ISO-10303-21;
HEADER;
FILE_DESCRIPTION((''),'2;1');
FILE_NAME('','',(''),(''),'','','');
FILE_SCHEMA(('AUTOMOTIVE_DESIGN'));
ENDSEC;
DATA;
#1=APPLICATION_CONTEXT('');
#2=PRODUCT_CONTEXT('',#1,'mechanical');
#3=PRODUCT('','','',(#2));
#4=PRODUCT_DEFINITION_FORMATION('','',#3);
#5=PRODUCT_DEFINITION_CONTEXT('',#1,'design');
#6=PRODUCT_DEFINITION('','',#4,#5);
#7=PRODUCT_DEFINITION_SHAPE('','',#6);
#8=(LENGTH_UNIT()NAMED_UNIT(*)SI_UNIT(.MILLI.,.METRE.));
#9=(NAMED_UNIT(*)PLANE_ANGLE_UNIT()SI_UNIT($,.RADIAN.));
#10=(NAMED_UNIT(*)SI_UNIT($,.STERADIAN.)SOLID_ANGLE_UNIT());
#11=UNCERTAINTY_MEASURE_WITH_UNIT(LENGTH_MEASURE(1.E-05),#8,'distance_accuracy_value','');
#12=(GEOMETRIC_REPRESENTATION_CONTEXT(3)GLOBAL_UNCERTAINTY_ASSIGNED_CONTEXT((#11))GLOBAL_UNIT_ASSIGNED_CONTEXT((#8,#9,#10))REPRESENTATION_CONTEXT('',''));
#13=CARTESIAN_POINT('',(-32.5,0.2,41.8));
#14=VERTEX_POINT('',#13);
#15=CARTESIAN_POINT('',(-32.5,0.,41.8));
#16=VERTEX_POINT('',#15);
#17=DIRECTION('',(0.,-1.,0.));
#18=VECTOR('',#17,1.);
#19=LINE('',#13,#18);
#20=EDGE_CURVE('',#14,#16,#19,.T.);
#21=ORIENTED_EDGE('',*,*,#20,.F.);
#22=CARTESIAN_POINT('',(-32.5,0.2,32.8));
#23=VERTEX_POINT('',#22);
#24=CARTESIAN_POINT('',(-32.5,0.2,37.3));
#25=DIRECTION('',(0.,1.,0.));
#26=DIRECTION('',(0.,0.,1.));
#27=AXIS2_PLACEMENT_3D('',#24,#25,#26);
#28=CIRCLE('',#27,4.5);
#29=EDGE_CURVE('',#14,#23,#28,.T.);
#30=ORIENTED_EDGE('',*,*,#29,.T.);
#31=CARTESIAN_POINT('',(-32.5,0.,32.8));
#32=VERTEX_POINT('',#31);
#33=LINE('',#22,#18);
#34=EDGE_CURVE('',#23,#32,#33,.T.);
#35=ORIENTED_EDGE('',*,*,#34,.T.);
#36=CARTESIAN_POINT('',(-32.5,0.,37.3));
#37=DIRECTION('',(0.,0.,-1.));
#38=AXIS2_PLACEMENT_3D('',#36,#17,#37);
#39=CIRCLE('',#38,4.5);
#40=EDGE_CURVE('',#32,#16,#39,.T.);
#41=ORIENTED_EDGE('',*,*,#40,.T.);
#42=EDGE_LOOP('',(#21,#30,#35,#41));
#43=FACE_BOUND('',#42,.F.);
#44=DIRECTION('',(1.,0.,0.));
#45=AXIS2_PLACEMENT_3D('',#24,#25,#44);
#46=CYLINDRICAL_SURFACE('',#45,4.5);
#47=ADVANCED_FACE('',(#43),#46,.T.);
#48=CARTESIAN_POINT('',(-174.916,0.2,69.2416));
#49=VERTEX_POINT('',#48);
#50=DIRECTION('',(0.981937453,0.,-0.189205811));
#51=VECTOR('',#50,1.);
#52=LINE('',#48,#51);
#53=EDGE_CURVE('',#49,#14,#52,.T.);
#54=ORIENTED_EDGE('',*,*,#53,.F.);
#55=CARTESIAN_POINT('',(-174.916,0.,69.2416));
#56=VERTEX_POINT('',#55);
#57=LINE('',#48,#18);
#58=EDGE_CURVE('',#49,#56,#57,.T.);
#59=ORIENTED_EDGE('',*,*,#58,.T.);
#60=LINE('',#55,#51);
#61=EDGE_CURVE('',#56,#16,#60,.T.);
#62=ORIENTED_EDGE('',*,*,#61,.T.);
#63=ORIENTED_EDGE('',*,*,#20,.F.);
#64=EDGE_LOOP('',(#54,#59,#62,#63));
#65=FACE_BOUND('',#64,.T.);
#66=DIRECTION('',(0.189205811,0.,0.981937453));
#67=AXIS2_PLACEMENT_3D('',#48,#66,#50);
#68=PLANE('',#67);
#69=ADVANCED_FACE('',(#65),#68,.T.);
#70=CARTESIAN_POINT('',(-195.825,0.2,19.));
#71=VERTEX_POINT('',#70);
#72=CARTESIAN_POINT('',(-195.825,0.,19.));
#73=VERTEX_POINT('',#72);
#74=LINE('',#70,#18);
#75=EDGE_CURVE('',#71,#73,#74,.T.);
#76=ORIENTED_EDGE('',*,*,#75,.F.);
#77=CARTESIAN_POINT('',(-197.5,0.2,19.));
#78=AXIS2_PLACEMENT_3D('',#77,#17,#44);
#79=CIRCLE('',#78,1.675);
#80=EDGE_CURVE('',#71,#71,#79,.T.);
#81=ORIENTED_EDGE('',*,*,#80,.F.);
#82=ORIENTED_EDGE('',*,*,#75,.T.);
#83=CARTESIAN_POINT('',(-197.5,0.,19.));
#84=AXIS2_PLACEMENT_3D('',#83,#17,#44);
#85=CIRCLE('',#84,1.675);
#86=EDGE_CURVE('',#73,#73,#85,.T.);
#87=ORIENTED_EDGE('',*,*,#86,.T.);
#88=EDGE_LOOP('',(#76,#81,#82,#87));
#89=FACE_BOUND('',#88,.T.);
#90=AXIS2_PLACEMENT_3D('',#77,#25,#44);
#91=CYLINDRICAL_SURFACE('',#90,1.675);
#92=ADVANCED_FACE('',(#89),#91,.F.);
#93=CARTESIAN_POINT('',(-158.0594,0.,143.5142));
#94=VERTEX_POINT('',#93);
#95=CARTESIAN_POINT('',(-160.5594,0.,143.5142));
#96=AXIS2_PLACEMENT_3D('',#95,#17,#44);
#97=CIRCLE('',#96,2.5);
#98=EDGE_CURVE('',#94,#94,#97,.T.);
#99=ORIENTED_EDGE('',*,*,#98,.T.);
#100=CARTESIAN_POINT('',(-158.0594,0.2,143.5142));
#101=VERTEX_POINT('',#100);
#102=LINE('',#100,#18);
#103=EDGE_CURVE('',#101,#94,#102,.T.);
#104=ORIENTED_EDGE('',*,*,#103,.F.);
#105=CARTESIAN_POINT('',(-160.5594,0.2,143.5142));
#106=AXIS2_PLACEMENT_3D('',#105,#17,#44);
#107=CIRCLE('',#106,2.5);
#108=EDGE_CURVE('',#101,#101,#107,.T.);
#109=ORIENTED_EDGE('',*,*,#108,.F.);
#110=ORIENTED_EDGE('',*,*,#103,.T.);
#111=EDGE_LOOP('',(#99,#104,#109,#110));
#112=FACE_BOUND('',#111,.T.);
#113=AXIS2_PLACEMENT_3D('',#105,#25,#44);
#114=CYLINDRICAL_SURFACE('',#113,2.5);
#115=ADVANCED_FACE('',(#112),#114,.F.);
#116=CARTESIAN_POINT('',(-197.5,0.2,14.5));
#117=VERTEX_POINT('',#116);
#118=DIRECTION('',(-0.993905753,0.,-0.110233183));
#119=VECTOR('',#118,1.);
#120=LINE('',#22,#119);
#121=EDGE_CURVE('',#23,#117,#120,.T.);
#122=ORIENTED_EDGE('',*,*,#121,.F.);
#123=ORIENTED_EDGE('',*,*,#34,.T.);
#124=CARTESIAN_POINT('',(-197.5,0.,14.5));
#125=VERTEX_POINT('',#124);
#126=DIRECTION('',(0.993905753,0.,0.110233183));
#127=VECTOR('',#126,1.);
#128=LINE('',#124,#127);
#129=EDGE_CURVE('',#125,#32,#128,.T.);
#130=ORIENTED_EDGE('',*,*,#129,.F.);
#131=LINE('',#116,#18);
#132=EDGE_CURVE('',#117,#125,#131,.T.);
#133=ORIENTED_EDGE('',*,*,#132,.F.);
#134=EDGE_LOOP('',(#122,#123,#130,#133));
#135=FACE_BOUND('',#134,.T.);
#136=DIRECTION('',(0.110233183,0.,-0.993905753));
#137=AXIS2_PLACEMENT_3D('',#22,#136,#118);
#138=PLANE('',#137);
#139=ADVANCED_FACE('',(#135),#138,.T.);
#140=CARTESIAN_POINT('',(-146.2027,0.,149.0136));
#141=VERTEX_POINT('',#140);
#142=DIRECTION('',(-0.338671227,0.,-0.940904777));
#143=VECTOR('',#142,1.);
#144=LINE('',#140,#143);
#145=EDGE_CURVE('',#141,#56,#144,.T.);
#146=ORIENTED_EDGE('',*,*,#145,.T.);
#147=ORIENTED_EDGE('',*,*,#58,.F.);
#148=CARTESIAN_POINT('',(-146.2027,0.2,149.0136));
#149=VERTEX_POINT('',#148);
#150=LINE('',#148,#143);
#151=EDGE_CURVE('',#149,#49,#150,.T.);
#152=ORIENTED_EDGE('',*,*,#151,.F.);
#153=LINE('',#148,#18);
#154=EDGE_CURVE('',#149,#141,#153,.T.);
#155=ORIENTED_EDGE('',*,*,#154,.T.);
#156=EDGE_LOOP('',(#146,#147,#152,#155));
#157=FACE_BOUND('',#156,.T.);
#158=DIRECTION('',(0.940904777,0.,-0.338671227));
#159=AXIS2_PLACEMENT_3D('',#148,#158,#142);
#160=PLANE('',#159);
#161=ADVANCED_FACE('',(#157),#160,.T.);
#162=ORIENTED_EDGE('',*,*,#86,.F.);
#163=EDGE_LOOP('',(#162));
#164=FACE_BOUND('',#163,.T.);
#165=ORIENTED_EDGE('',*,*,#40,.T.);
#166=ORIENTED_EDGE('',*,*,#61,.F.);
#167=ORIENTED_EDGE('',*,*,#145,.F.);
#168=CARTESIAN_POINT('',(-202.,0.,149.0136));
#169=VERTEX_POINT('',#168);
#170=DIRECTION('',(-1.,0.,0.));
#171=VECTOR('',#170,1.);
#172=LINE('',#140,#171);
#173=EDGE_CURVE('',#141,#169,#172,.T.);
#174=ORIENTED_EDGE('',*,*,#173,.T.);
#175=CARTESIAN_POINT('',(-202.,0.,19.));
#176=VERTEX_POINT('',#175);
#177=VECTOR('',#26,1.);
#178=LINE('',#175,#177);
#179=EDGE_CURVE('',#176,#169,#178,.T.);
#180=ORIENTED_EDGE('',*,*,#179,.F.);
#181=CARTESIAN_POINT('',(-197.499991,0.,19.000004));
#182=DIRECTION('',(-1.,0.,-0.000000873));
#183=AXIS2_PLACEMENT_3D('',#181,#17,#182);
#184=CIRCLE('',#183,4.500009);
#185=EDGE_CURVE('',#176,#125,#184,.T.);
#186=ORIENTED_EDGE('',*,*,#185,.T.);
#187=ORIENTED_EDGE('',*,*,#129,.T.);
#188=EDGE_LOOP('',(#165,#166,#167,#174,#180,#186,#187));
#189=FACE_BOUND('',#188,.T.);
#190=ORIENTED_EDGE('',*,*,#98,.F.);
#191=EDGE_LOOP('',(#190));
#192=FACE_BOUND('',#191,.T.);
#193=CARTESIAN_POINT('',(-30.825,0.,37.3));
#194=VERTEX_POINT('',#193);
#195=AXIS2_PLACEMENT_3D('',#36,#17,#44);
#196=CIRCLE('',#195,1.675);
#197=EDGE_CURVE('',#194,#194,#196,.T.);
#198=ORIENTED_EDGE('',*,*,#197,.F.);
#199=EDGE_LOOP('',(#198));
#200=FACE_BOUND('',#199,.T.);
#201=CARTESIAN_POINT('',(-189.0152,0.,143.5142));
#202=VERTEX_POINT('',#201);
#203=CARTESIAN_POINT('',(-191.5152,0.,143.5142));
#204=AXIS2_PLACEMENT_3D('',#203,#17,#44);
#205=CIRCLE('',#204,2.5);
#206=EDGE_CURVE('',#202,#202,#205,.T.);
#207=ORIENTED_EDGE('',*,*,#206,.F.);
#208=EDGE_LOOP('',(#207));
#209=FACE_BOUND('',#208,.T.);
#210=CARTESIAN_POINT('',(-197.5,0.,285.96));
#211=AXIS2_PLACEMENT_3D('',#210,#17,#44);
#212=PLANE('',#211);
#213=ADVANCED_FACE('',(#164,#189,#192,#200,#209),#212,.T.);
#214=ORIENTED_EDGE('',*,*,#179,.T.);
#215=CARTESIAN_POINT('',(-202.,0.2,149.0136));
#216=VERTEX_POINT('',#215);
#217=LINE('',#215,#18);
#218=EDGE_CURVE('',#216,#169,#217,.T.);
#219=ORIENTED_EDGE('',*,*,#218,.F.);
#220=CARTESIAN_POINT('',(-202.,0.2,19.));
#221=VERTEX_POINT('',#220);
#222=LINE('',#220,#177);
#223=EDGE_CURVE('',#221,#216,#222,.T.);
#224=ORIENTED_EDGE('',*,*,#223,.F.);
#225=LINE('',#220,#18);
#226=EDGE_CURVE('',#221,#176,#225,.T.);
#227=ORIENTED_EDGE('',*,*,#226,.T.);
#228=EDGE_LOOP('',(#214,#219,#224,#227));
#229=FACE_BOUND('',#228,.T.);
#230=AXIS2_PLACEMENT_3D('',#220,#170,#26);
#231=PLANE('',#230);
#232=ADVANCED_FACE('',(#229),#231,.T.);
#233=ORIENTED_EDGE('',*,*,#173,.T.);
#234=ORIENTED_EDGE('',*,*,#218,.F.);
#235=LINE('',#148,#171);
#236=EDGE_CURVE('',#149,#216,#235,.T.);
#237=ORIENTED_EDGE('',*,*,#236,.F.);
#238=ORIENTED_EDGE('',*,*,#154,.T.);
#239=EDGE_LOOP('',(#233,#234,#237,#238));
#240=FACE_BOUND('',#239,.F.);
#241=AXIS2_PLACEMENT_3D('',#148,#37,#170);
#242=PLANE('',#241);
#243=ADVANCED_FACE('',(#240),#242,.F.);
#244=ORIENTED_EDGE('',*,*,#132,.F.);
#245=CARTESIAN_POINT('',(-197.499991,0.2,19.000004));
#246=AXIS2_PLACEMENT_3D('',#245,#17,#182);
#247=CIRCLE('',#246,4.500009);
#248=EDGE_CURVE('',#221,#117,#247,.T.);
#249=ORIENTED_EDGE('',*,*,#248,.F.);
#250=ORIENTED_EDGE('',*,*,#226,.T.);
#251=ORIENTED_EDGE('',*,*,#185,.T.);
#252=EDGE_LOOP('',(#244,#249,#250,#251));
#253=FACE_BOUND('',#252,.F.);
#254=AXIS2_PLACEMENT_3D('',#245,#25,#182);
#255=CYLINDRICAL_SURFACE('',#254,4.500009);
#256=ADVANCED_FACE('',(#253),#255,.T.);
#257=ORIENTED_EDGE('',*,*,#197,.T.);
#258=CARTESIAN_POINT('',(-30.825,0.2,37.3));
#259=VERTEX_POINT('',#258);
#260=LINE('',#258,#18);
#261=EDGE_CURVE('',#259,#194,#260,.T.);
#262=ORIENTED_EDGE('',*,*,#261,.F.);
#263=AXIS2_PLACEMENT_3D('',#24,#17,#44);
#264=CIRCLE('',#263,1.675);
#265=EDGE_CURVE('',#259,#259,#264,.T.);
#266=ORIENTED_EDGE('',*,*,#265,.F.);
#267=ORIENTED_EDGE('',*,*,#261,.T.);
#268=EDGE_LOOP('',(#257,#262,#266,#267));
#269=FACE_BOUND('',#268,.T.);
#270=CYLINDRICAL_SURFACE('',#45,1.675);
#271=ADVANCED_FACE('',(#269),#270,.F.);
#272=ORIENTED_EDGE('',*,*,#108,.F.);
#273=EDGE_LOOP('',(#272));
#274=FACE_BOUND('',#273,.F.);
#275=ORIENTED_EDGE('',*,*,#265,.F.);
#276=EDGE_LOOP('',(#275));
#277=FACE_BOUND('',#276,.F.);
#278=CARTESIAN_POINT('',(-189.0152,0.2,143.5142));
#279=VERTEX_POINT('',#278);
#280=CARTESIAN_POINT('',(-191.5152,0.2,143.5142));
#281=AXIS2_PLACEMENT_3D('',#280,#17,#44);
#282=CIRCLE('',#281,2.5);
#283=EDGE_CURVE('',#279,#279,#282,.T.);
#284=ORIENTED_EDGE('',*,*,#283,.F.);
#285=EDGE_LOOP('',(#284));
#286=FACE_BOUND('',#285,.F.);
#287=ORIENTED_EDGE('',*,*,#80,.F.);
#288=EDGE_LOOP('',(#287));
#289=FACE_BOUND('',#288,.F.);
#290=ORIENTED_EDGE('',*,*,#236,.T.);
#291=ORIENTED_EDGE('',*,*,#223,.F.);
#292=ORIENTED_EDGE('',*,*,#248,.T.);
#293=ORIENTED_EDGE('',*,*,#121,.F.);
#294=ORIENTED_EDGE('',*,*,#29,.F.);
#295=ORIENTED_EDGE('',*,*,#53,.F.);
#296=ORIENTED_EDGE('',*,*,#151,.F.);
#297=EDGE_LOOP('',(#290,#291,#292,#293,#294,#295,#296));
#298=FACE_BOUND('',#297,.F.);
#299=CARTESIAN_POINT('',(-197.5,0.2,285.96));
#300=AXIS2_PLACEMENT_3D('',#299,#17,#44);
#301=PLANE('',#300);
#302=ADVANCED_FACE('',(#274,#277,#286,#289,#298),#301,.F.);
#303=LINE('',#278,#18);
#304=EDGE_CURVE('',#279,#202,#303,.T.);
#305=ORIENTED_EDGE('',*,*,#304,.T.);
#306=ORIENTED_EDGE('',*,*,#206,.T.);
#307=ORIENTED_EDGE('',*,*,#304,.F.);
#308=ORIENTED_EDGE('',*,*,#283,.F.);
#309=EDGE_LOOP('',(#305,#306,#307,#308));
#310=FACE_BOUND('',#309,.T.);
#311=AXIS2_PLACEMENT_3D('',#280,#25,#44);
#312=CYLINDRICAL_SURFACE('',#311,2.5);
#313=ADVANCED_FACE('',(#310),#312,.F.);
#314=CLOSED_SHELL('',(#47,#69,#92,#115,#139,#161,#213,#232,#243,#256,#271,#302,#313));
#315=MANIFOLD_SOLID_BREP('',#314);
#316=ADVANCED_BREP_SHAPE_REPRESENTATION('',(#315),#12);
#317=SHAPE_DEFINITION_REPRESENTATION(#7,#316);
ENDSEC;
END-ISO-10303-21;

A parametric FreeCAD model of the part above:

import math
import FreeCAD as App
import Part
import Sketcher

V = App.Vector

doc = App.newDocument("Part")
body = doc.addObject("PartDesign::Body", "Body")

# Sketch on XZ plane
sketch1 = doc.addObject("Sketcher::SketchObject", "Sketch")
body.addObject(sketch1)
sketch1.AttachmentSupport = (doc.XZ_Plane, [""])
sketch1.MapMode = "FlatFace"
sketch1.AttachmentOffset = App.Placement(V(0, 0, -0.2), App.Rotation())
sketch1.addGeometry([
    Part.LineSegment(V(-174.9, 69.2, 0), V(-146.2, 149, 0)),  # 0
    Part.LineSegment(V(-146.2, 149, 0), V(-202, 149, 0)),  # 1
    Part.LineSegment(V(-202, 149, 0), V(-202, 19, 0)),  # 2
    Part.ArcOfCircle(Part.Circle(V(-197.5, 19, 0), V(0, 0, 1), 4.5), math.radians(180), math.radians(270)),  # 3
    Part.LineSegment(V(-197.5, 14.5, 0), V(-32.5, 32.8, 0)),  # 4
    Part.ArcOfCircle(Part.Circle(V(-32.5, 37.3, 0), V(0, 0, 1), 4.5), math.radians(-90), math.radians(90)),  # 5
    Part.LineSegment(V(-32.5, 41.8, 0), V(-174.9, 69.2, 0)),  # 6
    Part.Circle(V(-191.5, 143.5, 0), V(0, 0, 1), 2.5),  # 7
    Part.Circle(V(-160.6, 143.5, 0), V(0, 0, 1), 2.5),  # 8
    Part.Circle(V(-32.5, 37.3, 0), V(0, 0, 1), 1.7),  # 9
    Part.Circle(V(-197.5, 19, 0), V(0, 0, 1), 1.7),  # 10
], False)
sketch1.addConstraint([
    Sketcher.Constraint("Coincident", 0, 2, 1, 1),
    Sketcher.Constraint("Coincident", 1, 2, 2, 1),
    Sketcher.Constraint("Tangent", 2, 2, 3, 1),
    Sketcher.Constraint("Coincident", 3, 2, 4, 1),
    Sketcher.Constraint("Coincident", 4, 2, 5, 1),
    Sketcher.Constraint("Coincident", 5, 2, 6, 1),
    Sketcher.Constraint("Coincident", 6, 2, 0, 1),
    Sketcher.Constraint("Horizontal", 1),
    Sketcher.Constraint("Vertical", 2),
    Sketcher.Constraint("Coincident", 9, 3, 5, 3),
    Sketcher.Constraint("Coincident", 10, 3, 3, 3),
    Sketcher.Constraint("Equal", 3, 5),
    Sketcher.Constraint("Equal", 7, 8),
    Sketcher.Constraint("Equal", 9, 10),
    Sketcher.Constraint("Horizontal", 7, 3, 8, 3),
    Sketcher.Constraint("Vertical", 10, 3, 3, 2),
    Sketcher.Constraint("Vertical", 9, 3, 4, 2),
    Sketcher.Constraint("Vertical", 4, 2, 5, 2),
    Sketcher.Constraint("Diameter", 7, 5.0),
    Sketcher.Constraint("Radius", 3, 4.5),
    Sketcher.Constraint("Diameter", 9, 3.35),
    Sketcher.Constraint("DistanceY", -1, 1, 3, 3, 19.0),
    Sketcher.Constraint("DistanceX", 1, 2, -1, 1, 202.0),
    Sketcher.Constraint("DistanceX", 3, 3, 5, 3, 165.0),
    Sketcher.Constraint("DistanceY", -1, 1, 5, 3, 37.3),
    Sketcher.Constraint("DistanceX", 1, 2, 1, 1, 55.7973),
    Sketcher.Constraint("DistanceY", 2, 2, 2, 1, 130.0136),
    Sketcher.Constraint("DistanceX", 6, 2, -1, 1, 174.916),
    Sketcher.Constraint("Distance", 0, 84.7822),
    Sketcher.Constraint("DistanceX", 7, 3, -1, 1, 191.5152),
    Sketcher.Constraint("DistanceY", -1, 1, 7, 3, 143.5142),
    Sketcher.Constraint("DistanceX", 8, 3, -1, 1, 160.5594),
])
pad1 = doc.addObject("PartDesign::Pad", "Pad")
body.addObject(pad1)
pad1.Profile = sketch1
pad1.Length = 0.2

doc.recompute()
